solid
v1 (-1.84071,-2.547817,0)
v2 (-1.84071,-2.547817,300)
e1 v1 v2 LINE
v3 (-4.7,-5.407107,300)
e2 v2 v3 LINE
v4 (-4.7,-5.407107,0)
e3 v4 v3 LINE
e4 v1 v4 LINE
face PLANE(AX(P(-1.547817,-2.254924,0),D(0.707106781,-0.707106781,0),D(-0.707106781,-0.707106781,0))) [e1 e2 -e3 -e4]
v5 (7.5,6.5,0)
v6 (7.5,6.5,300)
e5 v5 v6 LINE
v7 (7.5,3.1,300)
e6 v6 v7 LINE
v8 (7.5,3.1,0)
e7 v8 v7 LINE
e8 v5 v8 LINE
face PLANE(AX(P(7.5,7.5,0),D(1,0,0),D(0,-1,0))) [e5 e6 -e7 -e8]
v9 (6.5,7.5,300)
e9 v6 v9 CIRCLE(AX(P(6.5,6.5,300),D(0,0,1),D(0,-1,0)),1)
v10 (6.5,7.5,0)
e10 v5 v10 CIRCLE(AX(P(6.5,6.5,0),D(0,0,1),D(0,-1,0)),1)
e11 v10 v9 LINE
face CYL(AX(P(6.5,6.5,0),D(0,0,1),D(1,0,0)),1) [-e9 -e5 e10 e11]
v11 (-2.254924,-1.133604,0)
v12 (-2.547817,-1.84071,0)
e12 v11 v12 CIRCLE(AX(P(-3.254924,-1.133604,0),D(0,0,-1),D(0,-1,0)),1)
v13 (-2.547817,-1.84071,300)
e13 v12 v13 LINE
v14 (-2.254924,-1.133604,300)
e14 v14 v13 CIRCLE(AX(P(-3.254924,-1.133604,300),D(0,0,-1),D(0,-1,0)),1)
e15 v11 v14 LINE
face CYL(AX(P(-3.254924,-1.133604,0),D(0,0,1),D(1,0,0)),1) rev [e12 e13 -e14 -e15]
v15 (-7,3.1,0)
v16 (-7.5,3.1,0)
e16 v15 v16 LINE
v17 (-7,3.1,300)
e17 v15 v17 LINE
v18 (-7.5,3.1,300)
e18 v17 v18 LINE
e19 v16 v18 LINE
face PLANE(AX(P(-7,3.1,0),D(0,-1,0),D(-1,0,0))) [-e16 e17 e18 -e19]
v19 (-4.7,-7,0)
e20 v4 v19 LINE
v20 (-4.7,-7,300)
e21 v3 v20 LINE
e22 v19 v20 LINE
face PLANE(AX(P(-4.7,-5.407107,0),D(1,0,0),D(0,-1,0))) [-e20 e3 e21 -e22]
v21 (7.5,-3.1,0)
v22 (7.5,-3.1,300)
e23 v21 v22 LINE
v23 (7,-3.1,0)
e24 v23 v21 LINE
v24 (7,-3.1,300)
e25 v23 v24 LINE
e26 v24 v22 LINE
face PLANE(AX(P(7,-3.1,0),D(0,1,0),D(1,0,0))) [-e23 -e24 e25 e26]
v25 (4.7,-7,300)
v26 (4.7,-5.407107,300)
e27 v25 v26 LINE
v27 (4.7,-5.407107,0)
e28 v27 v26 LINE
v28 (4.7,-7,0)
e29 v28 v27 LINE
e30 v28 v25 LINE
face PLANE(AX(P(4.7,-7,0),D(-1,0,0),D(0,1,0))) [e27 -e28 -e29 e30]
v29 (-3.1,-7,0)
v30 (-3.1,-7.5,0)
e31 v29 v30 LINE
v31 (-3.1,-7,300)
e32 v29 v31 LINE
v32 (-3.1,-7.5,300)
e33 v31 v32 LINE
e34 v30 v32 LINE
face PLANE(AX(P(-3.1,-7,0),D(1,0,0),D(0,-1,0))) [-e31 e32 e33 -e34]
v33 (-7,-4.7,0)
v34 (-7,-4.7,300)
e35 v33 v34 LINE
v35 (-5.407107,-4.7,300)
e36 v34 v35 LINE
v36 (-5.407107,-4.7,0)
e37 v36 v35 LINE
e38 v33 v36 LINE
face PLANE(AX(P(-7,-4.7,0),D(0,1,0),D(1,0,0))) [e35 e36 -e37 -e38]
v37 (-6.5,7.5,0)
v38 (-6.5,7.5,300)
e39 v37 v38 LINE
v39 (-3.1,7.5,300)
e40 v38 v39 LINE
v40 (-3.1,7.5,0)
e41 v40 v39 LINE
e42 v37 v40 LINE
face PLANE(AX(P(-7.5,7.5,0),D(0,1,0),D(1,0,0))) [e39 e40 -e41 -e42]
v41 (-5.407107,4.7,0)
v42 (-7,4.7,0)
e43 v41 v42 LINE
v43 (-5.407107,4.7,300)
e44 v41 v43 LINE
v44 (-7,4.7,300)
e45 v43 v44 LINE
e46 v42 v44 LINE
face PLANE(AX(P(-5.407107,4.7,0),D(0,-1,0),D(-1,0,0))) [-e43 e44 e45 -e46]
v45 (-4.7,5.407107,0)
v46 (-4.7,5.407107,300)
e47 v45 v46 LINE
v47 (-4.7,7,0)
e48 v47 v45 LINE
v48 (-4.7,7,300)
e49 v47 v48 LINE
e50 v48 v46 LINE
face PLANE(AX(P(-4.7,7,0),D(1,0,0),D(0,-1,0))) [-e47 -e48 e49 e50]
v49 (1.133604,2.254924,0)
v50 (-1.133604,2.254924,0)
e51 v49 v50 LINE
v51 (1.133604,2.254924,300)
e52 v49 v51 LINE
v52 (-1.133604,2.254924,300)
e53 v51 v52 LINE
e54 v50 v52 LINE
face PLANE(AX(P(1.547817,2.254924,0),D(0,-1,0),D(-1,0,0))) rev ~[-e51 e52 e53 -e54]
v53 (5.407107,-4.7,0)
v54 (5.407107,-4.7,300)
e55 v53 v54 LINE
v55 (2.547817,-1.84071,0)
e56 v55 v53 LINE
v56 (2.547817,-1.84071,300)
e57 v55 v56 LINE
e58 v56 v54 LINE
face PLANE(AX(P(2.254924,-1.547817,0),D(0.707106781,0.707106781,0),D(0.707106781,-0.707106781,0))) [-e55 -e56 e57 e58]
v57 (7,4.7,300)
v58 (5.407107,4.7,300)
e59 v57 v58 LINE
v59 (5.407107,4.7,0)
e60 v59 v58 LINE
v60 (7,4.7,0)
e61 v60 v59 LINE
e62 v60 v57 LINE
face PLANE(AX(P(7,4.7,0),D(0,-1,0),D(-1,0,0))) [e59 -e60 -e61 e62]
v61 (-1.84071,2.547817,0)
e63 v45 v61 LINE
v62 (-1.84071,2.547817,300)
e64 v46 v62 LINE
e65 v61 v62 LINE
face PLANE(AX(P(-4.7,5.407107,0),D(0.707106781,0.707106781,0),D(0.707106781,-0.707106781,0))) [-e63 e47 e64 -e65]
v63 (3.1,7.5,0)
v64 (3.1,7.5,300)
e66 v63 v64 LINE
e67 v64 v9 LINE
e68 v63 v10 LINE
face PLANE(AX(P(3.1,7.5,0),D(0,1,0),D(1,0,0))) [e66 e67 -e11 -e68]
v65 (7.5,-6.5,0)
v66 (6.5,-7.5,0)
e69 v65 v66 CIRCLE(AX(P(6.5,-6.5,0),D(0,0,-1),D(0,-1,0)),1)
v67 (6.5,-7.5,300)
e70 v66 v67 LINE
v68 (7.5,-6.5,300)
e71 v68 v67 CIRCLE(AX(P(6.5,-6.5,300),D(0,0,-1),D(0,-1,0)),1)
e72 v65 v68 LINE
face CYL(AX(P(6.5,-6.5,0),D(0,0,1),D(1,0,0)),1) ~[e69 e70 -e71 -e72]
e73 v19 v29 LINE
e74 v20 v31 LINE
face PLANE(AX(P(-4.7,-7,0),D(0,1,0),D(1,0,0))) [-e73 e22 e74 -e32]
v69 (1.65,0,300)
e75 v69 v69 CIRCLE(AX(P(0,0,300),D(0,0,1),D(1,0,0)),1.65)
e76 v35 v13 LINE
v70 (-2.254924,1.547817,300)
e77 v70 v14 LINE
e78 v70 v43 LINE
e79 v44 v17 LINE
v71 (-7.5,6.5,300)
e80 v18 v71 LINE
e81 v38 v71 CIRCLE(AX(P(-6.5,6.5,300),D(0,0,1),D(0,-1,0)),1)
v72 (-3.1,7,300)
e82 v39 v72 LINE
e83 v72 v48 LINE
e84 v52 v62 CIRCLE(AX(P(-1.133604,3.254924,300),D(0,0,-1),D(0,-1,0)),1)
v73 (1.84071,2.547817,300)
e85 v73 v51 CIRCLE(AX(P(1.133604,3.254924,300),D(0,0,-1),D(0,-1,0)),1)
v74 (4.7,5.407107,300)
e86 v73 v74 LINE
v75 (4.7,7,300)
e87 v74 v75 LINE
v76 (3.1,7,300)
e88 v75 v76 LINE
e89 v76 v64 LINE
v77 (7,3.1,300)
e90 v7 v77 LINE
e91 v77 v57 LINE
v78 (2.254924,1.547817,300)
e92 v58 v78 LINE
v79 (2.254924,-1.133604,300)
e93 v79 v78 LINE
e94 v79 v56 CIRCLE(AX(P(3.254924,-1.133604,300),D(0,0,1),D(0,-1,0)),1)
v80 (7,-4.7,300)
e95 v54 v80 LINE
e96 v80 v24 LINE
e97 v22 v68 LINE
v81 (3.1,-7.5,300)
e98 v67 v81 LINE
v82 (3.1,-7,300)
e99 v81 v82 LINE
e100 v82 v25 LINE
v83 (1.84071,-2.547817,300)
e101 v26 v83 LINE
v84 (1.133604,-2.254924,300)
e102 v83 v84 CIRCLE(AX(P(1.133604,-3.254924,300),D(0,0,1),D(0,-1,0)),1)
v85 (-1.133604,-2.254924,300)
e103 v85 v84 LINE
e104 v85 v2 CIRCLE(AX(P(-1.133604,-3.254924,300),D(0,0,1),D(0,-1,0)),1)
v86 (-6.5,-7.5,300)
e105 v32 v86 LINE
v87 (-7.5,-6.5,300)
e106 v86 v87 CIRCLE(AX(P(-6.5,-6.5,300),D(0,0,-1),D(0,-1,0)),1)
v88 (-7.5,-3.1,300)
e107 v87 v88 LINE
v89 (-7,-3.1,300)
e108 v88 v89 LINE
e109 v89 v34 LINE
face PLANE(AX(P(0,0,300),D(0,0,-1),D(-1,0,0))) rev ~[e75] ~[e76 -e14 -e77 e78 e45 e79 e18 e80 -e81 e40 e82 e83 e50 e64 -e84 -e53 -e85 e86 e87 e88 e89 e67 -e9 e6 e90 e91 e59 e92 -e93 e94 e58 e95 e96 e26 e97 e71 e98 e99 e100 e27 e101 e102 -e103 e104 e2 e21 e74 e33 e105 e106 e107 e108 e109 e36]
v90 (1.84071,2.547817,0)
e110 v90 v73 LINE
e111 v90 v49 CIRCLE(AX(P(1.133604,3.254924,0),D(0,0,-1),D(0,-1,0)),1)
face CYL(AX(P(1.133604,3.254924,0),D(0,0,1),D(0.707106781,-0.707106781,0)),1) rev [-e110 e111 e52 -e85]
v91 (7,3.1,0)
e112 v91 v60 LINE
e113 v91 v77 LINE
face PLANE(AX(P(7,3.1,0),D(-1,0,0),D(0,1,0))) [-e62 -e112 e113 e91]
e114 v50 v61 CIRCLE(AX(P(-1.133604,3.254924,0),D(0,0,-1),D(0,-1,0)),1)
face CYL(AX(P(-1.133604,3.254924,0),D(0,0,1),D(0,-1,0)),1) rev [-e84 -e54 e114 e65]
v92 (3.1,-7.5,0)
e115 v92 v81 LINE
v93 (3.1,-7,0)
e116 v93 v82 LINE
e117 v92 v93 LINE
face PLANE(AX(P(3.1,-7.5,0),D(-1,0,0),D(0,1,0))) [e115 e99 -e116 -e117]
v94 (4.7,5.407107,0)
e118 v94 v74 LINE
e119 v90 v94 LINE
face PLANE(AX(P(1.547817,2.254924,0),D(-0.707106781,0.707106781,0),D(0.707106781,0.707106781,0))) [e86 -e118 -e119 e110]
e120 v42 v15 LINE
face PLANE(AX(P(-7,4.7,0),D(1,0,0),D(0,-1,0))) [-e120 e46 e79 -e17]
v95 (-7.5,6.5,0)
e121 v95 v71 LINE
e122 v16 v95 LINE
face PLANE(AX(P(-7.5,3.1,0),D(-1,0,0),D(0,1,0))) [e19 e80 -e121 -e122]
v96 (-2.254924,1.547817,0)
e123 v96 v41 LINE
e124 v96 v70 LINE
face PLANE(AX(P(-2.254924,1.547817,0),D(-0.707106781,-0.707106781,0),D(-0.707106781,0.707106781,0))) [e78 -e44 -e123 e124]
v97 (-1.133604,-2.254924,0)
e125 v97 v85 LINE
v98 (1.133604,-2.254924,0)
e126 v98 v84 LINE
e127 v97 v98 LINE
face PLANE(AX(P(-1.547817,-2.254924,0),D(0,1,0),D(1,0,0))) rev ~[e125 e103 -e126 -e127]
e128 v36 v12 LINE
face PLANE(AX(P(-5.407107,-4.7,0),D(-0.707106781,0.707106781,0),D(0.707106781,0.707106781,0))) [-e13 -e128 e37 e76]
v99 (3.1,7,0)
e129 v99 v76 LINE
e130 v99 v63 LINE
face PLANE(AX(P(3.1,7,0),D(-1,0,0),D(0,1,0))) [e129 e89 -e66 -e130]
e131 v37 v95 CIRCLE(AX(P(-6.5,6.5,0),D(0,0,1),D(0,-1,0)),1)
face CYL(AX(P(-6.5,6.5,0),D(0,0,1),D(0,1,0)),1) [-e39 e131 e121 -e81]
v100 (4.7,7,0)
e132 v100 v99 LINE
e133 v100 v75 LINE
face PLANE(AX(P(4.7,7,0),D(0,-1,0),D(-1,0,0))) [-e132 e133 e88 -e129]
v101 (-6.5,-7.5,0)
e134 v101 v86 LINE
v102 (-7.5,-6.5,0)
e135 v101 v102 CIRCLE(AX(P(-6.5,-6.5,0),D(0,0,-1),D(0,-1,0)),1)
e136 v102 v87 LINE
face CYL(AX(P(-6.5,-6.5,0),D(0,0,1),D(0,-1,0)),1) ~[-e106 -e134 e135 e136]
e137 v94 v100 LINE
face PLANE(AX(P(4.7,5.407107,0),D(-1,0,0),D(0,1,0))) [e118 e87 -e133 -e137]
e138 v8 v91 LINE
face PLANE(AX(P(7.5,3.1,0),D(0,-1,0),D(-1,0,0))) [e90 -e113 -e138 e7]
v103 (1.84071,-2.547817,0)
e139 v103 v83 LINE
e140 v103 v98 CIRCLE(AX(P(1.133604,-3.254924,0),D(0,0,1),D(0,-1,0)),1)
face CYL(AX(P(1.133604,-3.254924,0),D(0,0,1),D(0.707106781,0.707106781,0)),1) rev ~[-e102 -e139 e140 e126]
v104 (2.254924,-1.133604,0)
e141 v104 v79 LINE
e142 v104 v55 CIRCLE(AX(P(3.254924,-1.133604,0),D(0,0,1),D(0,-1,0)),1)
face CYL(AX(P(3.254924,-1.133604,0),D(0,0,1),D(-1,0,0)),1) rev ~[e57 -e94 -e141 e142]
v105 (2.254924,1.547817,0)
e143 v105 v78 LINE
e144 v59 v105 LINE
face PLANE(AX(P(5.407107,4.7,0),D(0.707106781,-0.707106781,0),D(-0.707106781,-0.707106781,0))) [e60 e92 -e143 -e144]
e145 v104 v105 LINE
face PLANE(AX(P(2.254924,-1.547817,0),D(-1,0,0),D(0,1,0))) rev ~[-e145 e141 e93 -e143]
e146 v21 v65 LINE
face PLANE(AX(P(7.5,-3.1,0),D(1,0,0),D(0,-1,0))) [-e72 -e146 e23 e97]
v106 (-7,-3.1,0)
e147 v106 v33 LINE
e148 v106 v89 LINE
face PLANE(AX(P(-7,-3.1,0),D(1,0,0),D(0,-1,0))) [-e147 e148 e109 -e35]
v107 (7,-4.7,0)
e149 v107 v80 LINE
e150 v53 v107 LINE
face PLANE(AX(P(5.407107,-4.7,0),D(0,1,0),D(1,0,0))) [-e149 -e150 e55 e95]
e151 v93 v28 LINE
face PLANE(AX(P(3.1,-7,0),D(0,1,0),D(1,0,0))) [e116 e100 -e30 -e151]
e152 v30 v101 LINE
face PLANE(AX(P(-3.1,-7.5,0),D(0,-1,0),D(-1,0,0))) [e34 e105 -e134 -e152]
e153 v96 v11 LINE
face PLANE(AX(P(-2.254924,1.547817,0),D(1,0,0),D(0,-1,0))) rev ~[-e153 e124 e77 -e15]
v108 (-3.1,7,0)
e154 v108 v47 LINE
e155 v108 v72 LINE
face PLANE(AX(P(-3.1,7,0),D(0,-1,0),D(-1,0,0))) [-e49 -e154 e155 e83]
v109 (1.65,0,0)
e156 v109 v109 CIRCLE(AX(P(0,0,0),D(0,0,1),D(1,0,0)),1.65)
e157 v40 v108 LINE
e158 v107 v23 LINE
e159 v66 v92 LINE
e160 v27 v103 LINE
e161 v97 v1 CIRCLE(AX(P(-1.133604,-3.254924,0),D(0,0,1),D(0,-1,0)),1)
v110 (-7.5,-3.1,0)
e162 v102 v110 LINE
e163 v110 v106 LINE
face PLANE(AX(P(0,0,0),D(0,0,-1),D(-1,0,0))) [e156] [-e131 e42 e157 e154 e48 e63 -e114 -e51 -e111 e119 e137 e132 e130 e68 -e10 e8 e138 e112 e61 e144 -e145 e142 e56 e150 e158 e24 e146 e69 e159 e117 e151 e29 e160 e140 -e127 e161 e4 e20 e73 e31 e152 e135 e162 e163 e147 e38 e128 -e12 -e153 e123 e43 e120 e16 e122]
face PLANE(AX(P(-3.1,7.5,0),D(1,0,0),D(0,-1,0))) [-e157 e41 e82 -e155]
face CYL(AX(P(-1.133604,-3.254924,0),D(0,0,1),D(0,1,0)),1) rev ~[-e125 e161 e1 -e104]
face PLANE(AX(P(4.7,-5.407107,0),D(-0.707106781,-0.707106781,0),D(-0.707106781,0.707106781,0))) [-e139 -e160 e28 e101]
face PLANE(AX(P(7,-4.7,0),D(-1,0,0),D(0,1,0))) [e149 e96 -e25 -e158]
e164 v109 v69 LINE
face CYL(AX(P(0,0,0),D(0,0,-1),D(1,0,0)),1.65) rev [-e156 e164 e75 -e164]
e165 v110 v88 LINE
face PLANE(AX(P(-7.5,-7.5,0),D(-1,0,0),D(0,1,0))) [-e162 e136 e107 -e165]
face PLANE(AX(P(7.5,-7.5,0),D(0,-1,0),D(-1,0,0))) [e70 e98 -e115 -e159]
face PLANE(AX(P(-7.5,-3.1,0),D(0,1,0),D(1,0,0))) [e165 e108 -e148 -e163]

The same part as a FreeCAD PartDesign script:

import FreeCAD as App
import Part
import Sketcher

V = App.Vector
Q = App.Units.Quantity


def edges_at(feature, points):
    """Names of the edges that pass closest to the given points."""
    edges = feature.Shape.Edges
    near = lambda p: min(range(len(edges)), key=lambda i: edges[i].distToShape(Part.Vertex(*p))[0])
    return sorted({f"Edge{near(p) + 1}" for p in points})

doc = App.newDocument("Part")
params = doc.addObject("Spreadsheet::Sheet", "Params")
for row, (alias, value) in enumerate([
    ("sketch1_diameter", "3.3 mm"),
    ("sketch1_width", "4.4 mm"),
    ("sketch1_width2", "1.6 mm"),
    ("sketch1_width3", "0.5 mm"),
    ("pad1_length", "300 mm"),
    ("fillet_radius", "1 mm"),
], start=1):
    params.set(f"A{row}", alias)
    params.set(f"B{row}", "=" + value)
    params.setAlias(f"B{row}", alias)

body = doc.addObject("PartDesign::Body", "Body")

# Sketch on XY plane
sketch1 = body.newObject("Sketcher::SketchObject", "Sketch")
sketch1.AttachmentSupport = (doc.getObject("XY_Plane"), [""])
sketch1.MapMode = "FlatFace"
sketch1.addGeometry([
    Part.LineSegment(V(7.5, 3.1, 0), V(7.5, 7.5, 0)),  # 0
    Part.LineSegment(V(7.5, 7.5, 0), V(3.1, 7.5, 0)),  # 1
    Part.LineSegment(V(3.1, 7.5, 0), V(3.1, 7, 0)),  # 2
    Part.LineSegment(V(3.1, 7, 0), V(4.7, 7, 0)),  # 3
    Part.LineSegment(V(4.7, 7, 0), V(4.7, 5.4, 0)),  # 4
    Part.LineSegment(V(4.7, 5.4, 0), V(1.5, 2.3, 0)),  # 5
    Part.LineSegment(V(1.5, 2.3, 0), V(-1.5, 2.3, 0)),  # 6
    Part.LineSegment(V(-1.5, 2.3, 0), V(-4.7, 5.4, 0)),  # 7
    Part.LineSegment(V(-4.7, 5.4, 0), V(-4.7, 7, 0)),  # 8
    Part.LineSegment(V(-4.7, 7, 0), V(-3.1, 7, 0)),  # 9
    Part.LineSegment(V(-3.1, 7, 0), V(-3.1, 7.5, 0)),  # 10
    Part.LineSegment(V(-3.1, 7.5, 0), V(-7.5, 7.5, 0)),  # 11
    Part.LineSegment(V(-7.5, 7.5, 0), V(-7.5, 3.1, 0)),  # 12
    Part.LineSegment(V(-7.5, 3.1, 0), V(-7, 3.1, 0)),  # 13
    Part.LineSegment(V(-7, 3.1, 0), V(-7, 4.7, 0)),  # 14
    Part.LineSegment(V(-7, 4.7, 0), V(-5.4, 4.7, 0)),  # 15
    Part.LineSegment(V(-5.4, 4.7, 0), V(-2.3, 1.5, 0)),  # 16
    Part.LineSegment(V(-2.3, 1.5, 0), V(-2.3, -1.5, 0)),  # 17
    Part.LineSegment(V(-2.3, -1.5, 0), V(-5.4, -4.7, 0)),  # 18
    Part.LineSegment(V(-5.4, -4.7, 0), V(-7, -4.7, 0)),  # 19
    Part.LineSegment(V(-7, -4.7, 0), V(-7, -3.1, 0)),  # 20
    Part.LineSegment(V(-7, -3.1, 0), V(-7.5, -3.1, 0)),  # 21
    Part.LineSegment(V(-7.5, -3.1, 0), V(-7.5, -7.5, 0)),  # 22
    Part.LineSegment(V(-7.5, -7.5, 0), V(-3.1, -7.5, 0)),  # 23
    Part.LineSegment(V(-3.1, -7.5, 0), V(-3.1, -7, 0)),  # 24
    Part.LineSegment(V(-3.1, -7, 0), V(-4.7, -7, 0)),  # 25
    Part.LineSegment(V(-4.7, -7, 0), V(-4.7, -5.4, 0)),  # 26
    Part.LineSegment(V(-4.7, -5.4, 0), V(-1.5, -2.3, 0)),  # 27
    Part.LineSegment(V(-1.5, -2.3, 0), V(1.5, -2.3, 0)),  # 28
    Part.LineSegment(V(1.5, -2.3, 0), V(4.7, -5.4, 0)),  # 29
    Part.LineSegment(V(4.7, -5.4, 0), V(4.7, -7, 0)),  # 30
    Part.LineSegment(V(4.7, -7, 0), V(3.1, -7, 0)),  # 31
    Part.LineSegment(V(3.1, -7, 0), V(3.1, -7.5, 0)),  # 32
    Part.LineSegment(V(3.1, -7.5, 0), V(7.5, -7.5, 0)),  # 33
    Part.LineSegment(V(7.5, -7.5, 0), V(7.5, -3.1, 0)),  # 34
    Part.LineSegment(V(7.5, -3.1, 0), V(7, -3.1, 0)),  # 35
    Part.LineSegment(V(7, -3.1, 0), V(7, -4.7, 0)),  # 36
    Part.LineSegment(V(7, -4.7, 0), V(5.4, -4.7, 0)),  # 37
    Part.LineSegment(V(5.4, -4.7, 0), V(2.3, -1.5, 0)),  # 38
    Part.LineSegment(V(2.3, -1.5, 0), V(2.3, 1.5, 0)),  # 39
    Part.LineSegment(V(2.3, 1.5, 0), V(5.4, 4.7, 0)),  # 40
    Part.LineSegment(V(5.4, 4.7, 0), V(7, 4.7, 0)),  # 41
    Part.LineSegment(V(7, 4.7, 0), V(7, 3.1, 0)),  # 42
    Part.LineSegment(V(7, 3.1, 0), V(7.5, 3.1, 0)),  # 43
    Part.Circle(V(0, 0, 0), V(0, 0, 1), 1.6),  # 44
], False)
sketch1.addConstraint([
    Sketcher.Constraint("Coincident", 0, 2, 1, 1),
    Sketcher.Constraint("Coincident", 1, 2, 2, 1),
    Sketcher.Constraint("Coincident", 2, 2, 3, 1),
    Sketcher.Constraint("Coincident", 3, 2, 4, 1),
    Sketcher.Constraint("Coincident", 4, 2, 5, 1),
    Sketcher.Constraint("Coincident", 5, 2, 6, 1),
    Sketcher.Constraint("Coincident", 6, 2, 7, 1),
    Sketcher.Constraint("Coincident", 7, 2, 8, 1),
    Sketcher.Constraint("Coincident", 8, 2, 9, 1),
    Sketcher.Constraint("Coincident", 9, 2, 10, 1),
    Sketcher.Constraint("Coincident", 10, 2, 11, 1),
    Sketcher.Constraint("Coincident", 11, 2, 12, 1),
    Sketcher.Constraint("Coincident", 12, 2, 13, 1),
    Sketcher.Constraint("Coincident", 13, 2, 14, 1),
    Sketcher.Constraint("Coincident", 14, 2, 15, 1),
    Sketcher.Constraint("Coincident", 15, 2, 16, 1),
    Sketcher.Constraint("Coincident", 16, 2, 17, 1),
    Sketcher.Constraint("Coincident", 17, 2, 18, 1),
    Sketcher.Constraint("Coincident", 18, 2, 19, 1),
    Sketcher.Constraint("Coincident", 19, 2, 20, 1),
    Sketcher.Constraint("Coincident", 20, 2, 21, 1),
    Sketcher.Constraint("Coincident", 21, 2, 22, 1),
    Sketcher.Constraint("Coincident", 22, 2, 23, 1),
    Sketcher.Constraint("Coincident", 23, 2, 24, 1),
    Sketcher.Constraint("Coincident", 24, 2, 25, 1),
    Sketcher.Constraint("Coincident", 25, 2, 26, 1),
    Sketcher.Constraint("Coincident", 26, 2, 27, 1),
    Sketcher.Constraint("Coincident", 27, 2, 28, 1),
    Sketcher.Constraint("Coincident", 28, 2, 29, 1),
    Sketcher.Constraint("Coincident", 29, 2, 30, 1),
    Sketcher.Constraint("Coincident", 30, 2, 31, 1),
    Sketcher.Constraint("Coincident", 31, 2, 32, 1),
    Sketcher.Constraint("Coincident", 32, 2, 33, 1),
    Sketcher.Constraint("Coincident", 33, 2, 34, 1),
    Sketcher.Constraint("Coincident", 34, 2, 35, 1),
    Sketcher.Constraint("Coincident", 35, 2, 36, 1),
    Sketcher.Constraint("Coincident", 36, 2, 37, 1),
    Sketcher.Constraint("Coincident", 37, 2, 38, 1),
    Sketcher.Constraint("Coincident", 38, 2, 39, 1),
    Sketcher.Constraint("Coincident", 39, 2, 40, 1),
    Sketcher.Constraint("Coincident", 40, 2, 41, 1),
    Sketcher.Constraint("Coincident", 41, 2, 42, 1),
    Sketcher.Constraint("Coincident", 42, 2, 43, 1),
    Sketcher.Constraint("Coincident", 43, 2, 0, 1),
    Sketcher.Constraint("Vertical", 0),
    Sketcher.Constraint("Horizontal", 1),
    Sketcher.Constraint("Vertical", 2),
    Sketcher.Constraint("Horizontal", 3),
    Sketcher.Constraint("Vertical", 4),
    Sketcher.Constraint("Horizontal", 6),
    Sketcher.Constraint("Vertical", 8),
    Sketcher.Constraint("Horizontal", 9),
    Sketcher.Constraint("Vertical", 10),
    Sketcher.Constraint("Horizontal", 11),
    Sketcher.Constraint("Vertical", 12),
    Sketcher.Constraint("Horizontal", 13),
    Sketcher.Constraint("Vertical", 14),
    Sketcher.Constraint("Horizontal", 15),
    Sketcher.Constraint("Vertical", 17),
    Sketcher.Constraint("Horizontal", 19),
    Sketcher.Constraint("Vertical", 20),
    Sketcher.Constraint("Horizontal", 21),
    Sketcher.Constraint("Vertical", 22),
    Sketcher.Constraint("Horizontal", 23),
    Sketcher.Constraint("Vertical", 24),
    Sketcher.Constraint("Horizontal", 25),
    Sketcher.Constraint("Vertical", 26),
    Sketcher.Constraint("Horizontal", 28),
    Sketcher.Constraint("Vertical", 30),
    Sketcher.Constraint("Horizontal", 31),
    Sketcher.Constraint("Vertical", 32),
    Sketcher.Constraint("Horizontal", 33),
    Sketcher.Constraint("Vertical", 34),
    Sketcher.Constraint("Horizontal", 35),
    Sketcher.Constraint("Vertical", 36),
    Sketcher.Constraint("Horizontal", 37),
    Sketcher.Constraint("Vertical", 39),
    Sketcher.Constraint("Horizontal", 41),
    Sketcher.Constraint("Vertical", 42),
    Sketcher.Constraint("Horizontal", 43),
    Sketcher.Constraint("Coincident", 44, 3, -1, 1),
    Sketcher.Constraint("Symmetric", 0, 2, 22, 2, -1, 1),
    Sketcher.Constraint("Symmetric", 2, 2, 24, 2, -1, 1),
    Sketcher.Constraint("Symmetric", 4, 2, 26, 2, -1, 1),
    Sketcher.Constraint("Symmetric", 5, 2, 27, 2, -1, 1),
    Sketcher.Constraint("Symmetric", 7, 2, 29, 2, -1, 1),
    Sketcher.Constraint("Symmetric", 9, 2, 31, 2, -1, 1),
    Sketcher.Constraint("Symmetric", 11, 2, 33, 2, -1, 1),
    Sketcher.Constraint("Symmetric", 13, 2, 35, 2, -1, 1),
    Sketcher.Constraint("Symmetric", 15, 2, 37, 2, -1, 1),
    Sketcher.Constraint("Symmetric", 16, 2, 38, 2, -1, 1),
    Sketcher.Constraint("Symmetric", 18, 2, 40, 2, -1, 1),
    Sketcher.Constraint("Symmetric", 20, 2, 42, 2, -1, 1),
    Sketcher.Constraint("Symmetric", 4, 2, 7, 2, -2),
    Sketcher.Constraint("Symmetric", 2, 2, 9, 2, -2),
    Sketcher.Constraint("Symmetric", 0, 2, 11, 2, -2),
    Sketcher.Constraint("Symmetric", 20, 2, 35, 2, -2),
    Sketcher.Constraint("Symmetric", 18, 2, 37, 2, -2),
    Sketcher.Constraint("Perpendicular", 5, 7),
    Sketcher.Constraint("Parallel", 7, 16),
    Sketcher.Constraint("Perpendicular", 16, 18),
    Sketcher.Constraint("Perpendicular", 27, 29),
    Sketcher.Constraint("Perpendicular", 38, 40),
    Sketcher.Constraint("Horizontal", 17, 2, 38, 2),
    Sketcher.Constraint("Equal", 33, 0),
    Sketcher.Constraint("Equal", 43, 2),
    Sketcher.Constraint("Equal", 41, 4),
    Sketcher.Constraint("Equal", 31, 14),
    Sketcher.Constraint("Equal", 28, 17),
    Sketcher.Constraint("Equal", 7, 16),
    Sketcher.Constraint("Diameter", 44, Q("3.3 mm")),
    Sketcher.Constraint("DistanceX", 1, 2, 1, 1, Q("4.4 mm")),
    Sketcher.Constraint("DistanceX", 3, 1, 3, 2, Q("1.6 mm")),
    Sketcher.Constraint("DistanceX", 13, 1, 13, 2, Q("0.5 mm")),
    Sketcher.Constraint("DistanceY", -1, 1, 2, 2, Q("7 mm")),
    Sketcher.Constraint("Distance", 5, Q("4.45786 mm")),
    Sketcher.Constraint("DistanceX", 15, 1, 15, 2, Q("1.592893 mm")),
])
sketch1.setExpression("Constraints[110]", "Params.sketch1_diameter")
sketch1.setExpression("Constraints[111]", "Params.sketch1_width")
sketch1.setExpression("Constraints[112]", "Params.sketch1_width2")
sketch1.setExpression("Constraints[113]", "Params.sketch1_width3")
pad1 = body.newObject("PartDesign::Pad", "Pad")
pad1.Profile = sketch1
pad1.setExpression("Length", "Params.pad1_length")
doc.recompute()

fillet = body.newObject("PartDesign::Fillet", "Fillet")
fillet.Base = (pad1, edges_at(pad1, [
    (7.5, 7.5, 150),
    (2.255, -1.548, 150),
    (7.5, -7.5, 150),
    (1.548, -2.255, 150),
    (-1.548, -2.255, 150),
    (-7.5, -7.5, 150),
    (-2.255, -1.548, 150),
    (-7.5, 7.5, 150),
    (-1.548, 2.255, 150),
    (1.548, 2.255, 150),
]))
fillet.setExpression("Radius", "Params.fillet_radius")

doc.recompute()
